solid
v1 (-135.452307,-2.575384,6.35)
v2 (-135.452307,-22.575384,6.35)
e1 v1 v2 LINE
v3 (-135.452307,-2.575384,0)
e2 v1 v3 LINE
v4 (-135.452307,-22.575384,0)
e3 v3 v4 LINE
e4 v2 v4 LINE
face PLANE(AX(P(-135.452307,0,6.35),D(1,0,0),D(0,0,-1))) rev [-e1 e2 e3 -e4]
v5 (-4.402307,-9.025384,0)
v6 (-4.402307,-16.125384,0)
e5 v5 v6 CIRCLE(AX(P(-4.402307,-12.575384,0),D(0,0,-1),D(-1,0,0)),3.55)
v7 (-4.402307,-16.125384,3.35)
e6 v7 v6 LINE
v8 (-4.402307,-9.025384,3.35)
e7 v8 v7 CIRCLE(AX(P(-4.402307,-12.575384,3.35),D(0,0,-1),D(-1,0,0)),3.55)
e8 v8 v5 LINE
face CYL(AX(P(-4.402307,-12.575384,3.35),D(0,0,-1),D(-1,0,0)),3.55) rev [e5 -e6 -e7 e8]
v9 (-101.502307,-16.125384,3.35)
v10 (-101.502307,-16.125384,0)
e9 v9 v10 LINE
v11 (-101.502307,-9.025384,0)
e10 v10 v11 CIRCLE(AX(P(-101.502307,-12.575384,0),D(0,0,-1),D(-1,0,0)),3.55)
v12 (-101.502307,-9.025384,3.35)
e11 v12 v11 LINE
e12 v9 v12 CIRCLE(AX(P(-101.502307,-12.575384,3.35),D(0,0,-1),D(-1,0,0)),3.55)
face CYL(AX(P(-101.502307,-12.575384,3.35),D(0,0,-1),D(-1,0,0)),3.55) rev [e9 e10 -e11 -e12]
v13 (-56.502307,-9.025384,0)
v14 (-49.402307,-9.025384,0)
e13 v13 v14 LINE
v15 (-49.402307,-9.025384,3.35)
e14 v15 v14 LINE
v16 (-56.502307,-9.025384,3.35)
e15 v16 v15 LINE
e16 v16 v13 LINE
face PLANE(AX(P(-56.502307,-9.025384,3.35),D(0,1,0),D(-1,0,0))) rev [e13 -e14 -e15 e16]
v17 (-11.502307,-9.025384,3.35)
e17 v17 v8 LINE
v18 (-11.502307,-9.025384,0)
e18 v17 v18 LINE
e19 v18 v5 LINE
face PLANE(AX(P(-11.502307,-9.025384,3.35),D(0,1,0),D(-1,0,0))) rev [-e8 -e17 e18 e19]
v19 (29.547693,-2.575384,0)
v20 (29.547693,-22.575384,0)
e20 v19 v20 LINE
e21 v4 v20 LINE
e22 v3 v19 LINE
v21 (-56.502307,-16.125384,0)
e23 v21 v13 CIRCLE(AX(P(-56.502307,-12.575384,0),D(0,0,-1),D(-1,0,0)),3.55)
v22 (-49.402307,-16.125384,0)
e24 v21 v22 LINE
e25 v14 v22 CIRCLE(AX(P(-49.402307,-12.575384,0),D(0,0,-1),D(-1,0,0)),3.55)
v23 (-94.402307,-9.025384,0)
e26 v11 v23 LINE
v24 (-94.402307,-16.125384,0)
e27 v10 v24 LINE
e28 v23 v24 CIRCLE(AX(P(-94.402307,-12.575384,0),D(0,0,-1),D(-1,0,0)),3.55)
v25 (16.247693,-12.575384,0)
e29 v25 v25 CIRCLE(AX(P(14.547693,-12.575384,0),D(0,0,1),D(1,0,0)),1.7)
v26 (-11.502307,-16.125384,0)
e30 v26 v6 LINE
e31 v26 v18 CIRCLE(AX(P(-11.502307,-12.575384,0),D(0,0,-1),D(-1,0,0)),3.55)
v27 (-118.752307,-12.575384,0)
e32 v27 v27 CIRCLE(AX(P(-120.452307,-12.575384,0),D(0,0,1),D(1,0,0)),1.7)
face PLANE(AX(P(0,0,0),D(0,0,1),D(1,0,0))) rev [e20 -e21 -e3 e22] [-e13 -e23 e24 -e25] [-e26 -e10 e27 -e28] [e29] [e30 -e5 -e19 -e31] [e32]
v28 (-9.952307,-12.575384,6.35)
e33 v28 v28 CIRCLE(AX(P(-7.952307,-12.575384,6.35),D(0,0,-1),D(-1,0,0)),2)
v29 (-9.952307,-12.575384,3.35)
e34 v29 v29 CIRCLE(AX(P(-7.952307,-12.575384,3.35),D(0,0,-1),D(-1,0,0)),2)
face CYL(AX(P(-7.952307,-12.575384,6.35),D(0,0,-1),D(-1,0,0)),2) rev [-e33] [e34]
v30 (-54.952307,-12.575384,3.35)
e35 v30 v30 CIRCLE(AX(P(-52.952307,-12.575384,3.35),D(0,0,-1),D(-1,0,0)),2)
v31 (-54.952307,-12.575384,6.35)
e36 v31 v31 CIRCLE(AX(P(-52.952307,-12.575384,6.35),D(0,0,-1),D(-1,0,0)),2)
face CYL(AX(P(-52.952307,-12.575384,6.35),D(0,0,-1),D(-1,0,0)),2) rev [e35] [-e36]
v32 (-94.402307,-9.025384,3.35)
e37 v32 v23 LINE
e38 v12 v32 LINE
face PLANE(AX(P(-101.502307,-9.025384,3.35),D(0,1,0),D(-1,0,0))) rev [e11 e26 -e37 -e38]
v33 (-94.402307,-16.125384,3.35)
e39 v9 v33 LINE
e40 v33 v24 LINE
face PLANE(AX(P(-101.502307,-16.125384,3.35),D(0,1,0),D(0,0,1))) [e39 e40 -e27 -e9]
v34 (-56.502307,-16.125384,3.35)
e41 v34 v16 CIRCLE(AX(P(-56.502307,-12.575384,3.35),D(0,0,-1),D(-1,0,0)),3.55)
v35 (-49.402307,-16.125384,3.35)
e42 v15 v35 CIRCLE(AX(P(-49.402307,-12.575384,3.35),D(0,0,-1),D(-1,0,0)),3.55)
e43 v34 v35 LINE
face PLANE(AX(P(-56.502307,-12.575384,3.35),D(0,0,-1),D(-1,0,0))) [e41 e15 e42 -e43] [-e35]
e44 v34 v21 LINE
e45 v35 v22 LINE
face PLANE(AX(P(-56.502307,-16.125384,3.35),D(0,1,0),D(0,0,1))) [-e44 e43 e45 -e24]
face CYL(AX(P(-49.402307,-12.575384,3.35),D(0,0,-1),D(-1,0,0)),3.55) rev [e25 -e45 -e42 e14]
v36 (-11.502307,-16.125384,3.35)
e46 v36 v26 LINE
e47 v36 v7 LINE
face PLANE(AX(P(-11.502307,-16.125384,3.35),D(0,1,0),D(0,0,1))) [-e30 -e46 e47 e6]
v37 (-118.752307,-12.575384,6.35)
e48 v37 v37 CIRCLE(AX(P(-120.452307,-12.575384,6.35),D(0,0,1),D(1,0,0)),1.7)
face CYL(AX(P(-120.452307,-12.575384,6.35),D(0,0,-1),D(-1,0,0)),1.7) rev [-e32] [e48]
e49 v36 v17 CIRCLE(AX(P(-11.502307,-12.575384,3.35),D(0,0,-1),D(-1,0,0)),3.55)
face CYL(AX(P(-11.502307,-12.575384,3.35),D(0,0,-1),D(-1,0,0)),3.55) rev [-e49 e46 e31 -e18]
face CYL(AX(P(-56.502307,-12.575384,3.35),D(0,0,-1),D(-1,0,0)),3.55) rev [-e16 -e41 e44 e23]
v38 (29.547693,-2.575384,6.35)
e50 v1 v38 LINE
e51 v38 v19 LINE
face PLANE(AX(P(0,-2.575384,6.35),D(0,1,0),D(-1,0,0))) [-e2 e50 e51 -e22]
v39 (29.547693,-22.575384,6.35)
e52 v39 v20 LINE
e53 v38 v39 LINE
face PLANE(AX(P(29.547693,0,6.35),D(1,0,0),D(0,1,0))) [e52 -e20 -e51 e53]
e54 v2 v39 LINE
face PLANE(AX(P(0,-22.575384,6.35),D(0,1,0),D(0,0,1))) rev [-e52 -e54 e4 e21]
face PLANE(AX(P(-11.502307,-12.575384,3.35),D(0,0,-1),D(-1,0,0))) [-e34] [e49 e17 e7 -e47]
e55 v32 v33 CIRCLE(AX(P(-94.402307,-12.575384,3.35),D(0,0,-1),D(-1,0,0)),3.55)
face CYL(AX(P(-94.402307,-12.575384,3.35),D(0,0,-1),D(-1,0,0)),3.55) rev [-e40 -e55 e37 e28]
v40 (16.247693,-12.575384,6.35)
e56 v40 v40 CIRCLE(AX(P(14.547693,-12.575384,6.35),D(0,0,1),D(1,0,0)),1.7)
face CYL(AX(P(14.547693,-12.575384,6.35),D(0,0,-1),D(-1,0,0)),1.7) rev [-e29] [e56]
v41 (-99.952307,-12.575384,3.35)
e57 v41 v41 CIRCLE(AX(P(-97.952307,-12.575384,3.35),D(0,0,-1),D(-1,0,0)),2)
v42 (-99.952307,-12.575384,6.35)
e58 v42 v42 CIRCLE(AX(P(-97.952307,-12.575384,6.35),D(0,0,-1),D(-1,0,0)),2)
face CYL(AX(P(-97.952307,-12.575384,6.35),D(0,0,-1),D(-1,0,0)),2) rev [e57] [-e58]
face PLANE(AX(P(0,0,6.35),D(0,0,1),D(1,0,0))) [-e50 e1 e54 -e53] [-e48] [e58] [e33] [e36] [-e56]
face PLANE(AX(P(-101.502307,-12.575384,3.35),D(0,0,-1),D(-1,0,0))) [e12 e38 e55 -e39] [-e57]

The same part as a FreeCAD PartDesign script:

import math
import FreeCAD as App
import Part
import Sketcher
from FreeCAD import Vector
Q = App.Units.Quantity


def add_polygon(sketch, points):
    """Adds a closed chain of lines whose ends are joined by coincident constraints."""
    first, n = sketch.GeometryCount, len(points)
    for a, b in zip(points, points[1:] + points[:1]):
        sketch.addGeometry(Part.LineSegment(App.Vector(*a, 0), App.Vector(*b, 0)), False)
    for i in range(n):
        sketch.addConstraint(Sketcher.Constraint("Coincident", first + i, 2, first + (i + 1) % n, 1))

doc = App.newDocument("Part")
body = doc.addObject("PartDesign::Body", "Body")

# Sketch on XY plane
sketch1 = body.newObject("Sketcher::SketchObject", "Sketch")
sketch1.AttachmentSupport = (doc.getObject("XY_Plane"), [""])
sketch1.MapMode = "FlatFace"
add_polygon(sketch1, [(29.5, -22.6), (29.5, -2.6), (-135.5, -2.6), (-135.5, -22.6)])  # lines 0-3
sketch1.addGeometry(Part.Circle(Vector(14.5, -12.6, 0), Vector(0, 0, 1), 1.7), False)  # 4
sketch1.addGeometry(Part.Circle(Vector(-120.5, -12.6, 0), Vector(0, 0, 1), 1.7), False)  # 5
sketch1.addConstraint([
    Sketcher.Constraint("Vertical", 0),
    Sketcher.Constraint("Horizontal", 1),
    Sketcher.Constraint("Vertical", 2),
    Sketcher.Constraint("Horizontal", 3),
    Sketcher.Constraint("Equal", 4, 5),
    Sketcher.Constraint("Horizontal", 4, 3, 5, 3),
    Sketcher.Constraint("Diameter", 4, Q("3.4 mm")),
    Sketcher.Constraint("DistanceX", 1, 2, 1, 1, Q("165 mm")),
    Sketcher.Constraint("DistanceY", 0, 1, 0, 2, Q("20 mm")),
    Sketcher.Constraint("DistanceX", 5, 3, 4, 3, Q("135 mm")),
    Sketcher.Constraint("DistanceX", 4, 3, 0, 2, Q("15 mm")),
    Sketcher.Constraint("DistanceY", 4, 3, 0, 2, Q("10 mm")),
    Sketcher.Constraint("DistanceX", -1, 1, 4, 3, Q("14.547693 mm")),
    Sketcher.Constraint("DistanceY", 4, 3, -1, 1, Q("12.575384 mm")),
])
pad1 = body.newObject("PartDesign::Pad", "Pad")
pad1.Profile = sketch1
pad1.Length = 6.35

# Sketch on XY plane
sketch2 = body.newObject("Sketcher::SketchObject", "Sketch001")
sketch2.AttachmentSupport = (doc.getObject("XY_Plane"), [""])
sketch2.MapMode = "FlatFace"
sketch2.addGeometry([
    Part.LineSegment(Vector(-49.4, -16.1, 0), Vector(-56.5, -16.1, 0)),  # 0
    Part.ArcOfCircle(Part.Circle(Vector(-56.5, -12.6, 0), Vector(0, 0, 1), 3.5), math.radians(90), math.radians(270)),  # 1
    Part.LineSegment(Vector(-56.5, -9, 0), Vector(-49.4, -9, 0)),  # 2
    Part.ArcOfCircle(Part.Circle(Vector(-49.4, -12.6, 0), Vector(0, 0, 1), 3.5), math.radians(-90), math.radians(90)),  # 3
    Part.LineSegment(Vector(-94.4, -16.1, 0), Vector(-101.5, -16.1, 0)),  # 4
    Part.ArcOfCircle(Part.Circle(Vector(-101.5, -12.6, 0), Vector(0, 0, 1), 3.5), math.radians(90), math.radians(270)),  # 5
    Part.LineSegment(Vector(-101.5, -9, 0), Vector(-94.4, -9, 0)),  # 6
    Part.ArcOfCircle(Part.Circle(Vector(-94.4, -12.6, 0), Vector(0, 0, 1), 3.5), math.radians(-90), math.radians(90)),  # 7
    Part.LineSegment(Vector(-4.4, -16.1, 0), Vector(-11.5, -16.1, 0)),  # 8
    Part.ArcOfCircle(Part.Circle(Vector(-11.5, -12.6, 0), Vector(0, 0, 1), 3.5), math.radians(90), math.radians(270)),  # 9
    Part.LineSegment(Vector(-11.5, -9, 0), Vector(-4.4, -9, 0)),  # 10
    Part.ArcOfCircle(Part.Circle(Vector(-4.4, -12.6, 0), Vector(0, 0, 1), 3.5), math.radians(-90), math.radians(90)),  # 11
], False)
sketch2.addConstraint([
    Sketcher.Constraint("Tangent", 0, 2, 1, 2),
    Sketcher.Constraint("Tangent", 1, 1, 2, 1),
    Sketcher.Constraint("Tangent", 2, 2, 3, 2),
    Sketcher.Constraint("Tangent", 3, 1, 0, 1),
    Sketcher.Constraint("Tangent", 4, 2, 5, 2),
    Sketcher.Constraint("Tangent", 5, 1, 6, 1),
    Sketcher.Constraint("Tangent", 6, 2, 7, 2),
    Sketcher.Constraint("Tangent", 7, 1, 4, 1),
    Sketcher.Constraint("Tangent", 8, 2, 9, 2),
    Sketcher.Constraint("Tangent", 9, 1, 10, 1),
    Sketcher.Constraint("Tangent", 10, 2, 11, 2),
    Sketcher.Constraint("Tangent", 11, 1, 8, 1),
    Sketcher.Constraint("Horizontal", 0),
    Sketcher.Constraint("Horizontal", 2),
    Sketcher.Constraint("Horizontal", 4),
    Sketcher.Constraint("Horizontal", 6),
    Sketcher.Constraint("Horizontal", 8),
    Sketcher.Constraint("Horizontal", 10),
    Sketcher.Constraint("Equal", 3, 5),
    Sketcher.Constraint("Equal", 7, 9),
    Sketcher.Constraint("Horizontal", 3, 3, 5, 3),
    Sketcher.Constraint("Horizontal", 7, 3, 9, 3),
    Sketcher.Constraint("Equal", 2, 4),
    Sketcher.Constraint("Equal", 6, 8),
    Sketcher.Constraint("Radius", 1, Q("3.55 mm")),
    Sketcher.Constraint("DistanceX", 0, 2, 0, 1, Q("7.1 mm")),
    Sketcher.Constraint("DistanceX", 5, 3, 1, 3, Q("45 mm")),
    Sketcher.Constraint("DistanceX", 1, 3, 9, 3, Q("45 mm")),
    Sketcher.Constraint("DistanceX", 1, 3, -1, 1, Q("56.502307 mm")),
    Sketcher.Constraint("DistanceY", 1, 3, -1, 1, Q("12.575384 mm")),
])
pocket1 = body.newObject("PartDesign::Pocket", "Pocket")
pocket1.Profile = sketch2
pocket1.Length = 3.35
pocket1.Reversed = True

# Sketch on XY plane
sketch3 = body.newObject("Sketcher::SketchObject", "Sketch002")
sketch3.AttachmentSupport = (doc.getObject("XY_Plane"), [""])
sketch3.MapMode = "FlatFace"
sketch3.AttachmentOffset = App.Placement(Vector(0, 0, 3.35), App.Rotation())
sketch3.addGeometry([
    Part.ArcOfCircle(Part.Circle(Vector(-8, -12.6, 0), Vector(0, 0, 1), 2), math.radians(90), math.radians(180)),  # 0
    Part.ArcOfCircle(Part.Circle(Vector(-8, -12.6, 0), Vector(0, 0, 1), 2), math.radians(-90), math.radians(90)),  # 1
    Part.ArcOfCircle(Part.Circle(Vector(-8, -12.6, 0), Vector(0, 0, 1), 2), math.radians(180), math.radians(270)),  # 2
    Part.ArcOfCircle(Part.Circle(Vector(-53, -12.6, 0), Vector(0, 0, 1), 2), math.radians(-90), math.radians(90)),  # 3
    Part.ArcOfCircle(Part.Circle(Vector(-53, -12.6, 0), Vector(0, 0, 1), 2), math.radians(180), math.radians(270)),  # 4
    Part.ArcOfCircle(Part.Circle(Vector(-53, -12.6, 0), Vector(0, 0, 1), 2), math.radians(90), math.radians(180)),  # 5
    Part.ArcOfCircle(Part.Circle(Vector(-98, -12.6, 0), Vector(0, 0, 1), 2), math.radians(90), math.radians(180)),  # 6
    Part.ArcOfCircle(Part.Circle(Vector(-98, -12.6, 0), Vector(0, 0, 1), 2), math.radians(-90), math.radians(90)),  # 7
    Part.ArcOfCircle(Part.Circle(Vector(-98, -12.6, 0), Vector(0, 0, 1), 2), math.radians(180), math.radians(270)),  # 8
], False)
sketch3.addConstraint([
    Sketcher.Constraint("Tangent", 0, 1, 1, 2),
    Sketcher.Constraint("Tangent", 1, 1, 2, 2),
    Sketcher.Constraint("Tangent", 2, 1, 0, 2),
    Sketcher.Constraint("Tangent", 3, 1, 4, 2),
    Sketcher.Constraint("Tangent", 4, 1, 5, 2),
    Sketcher.Constraint("Tangent", 5, 1, 3, 2),
    Sketcher.Constraint("Tangent", 6, 1, 7, 2),
    Sketcher.Constraint("Tangent", 7, 1, 8, 2),
    Sketcher.Constraint("Tangent", 8, 1, 6, 2),
    Sketcher.Constraint("Equal", 2, 3),
    Sketcher.Constraint("Equal", 5, 6),
    Sketcher.Constraint("Horizontal", 2, 3, 3, 3),
    Sketcher.Constraint("Horizontal", 5, 3, 6, 3),
    Sketcher.Constraint("Horizontal", 8, 3, 2, 1),
    Sketcher.Constraint("Horizontal", 2, 1, 4, 1),
    Sketcher.Constraint("Horizontal", 4, 1, 8, 1),
    Sketcher.Constraint("Vertical", 2, 3, 0, 1),
    Sketcher.Constraint("Vertical", 0, 1, 1, 1),
    Sketcher.Constraint("Vertical", 5, 3, 3, 1),
    Sketcher.Constraint("Vertical", 3, 1, 5, 1),
    Sketcher.Constraint("Vertical", 8, 3, 6, 1),
    Sketcher.Constraint("Vertical", 6, 1, 7, 1),
    Sketcher.Constraint("Radius", 0, Q("2 mm")),
    Sketcher.Constraint("DistanceX", 3, 3, 2, 3, Q("45 mm")),
    Sketcher.Constraint("DistanceX", 6, 3, 4, 3, Q("45 mm")),
    Sketcher.Constraint("DistanceX", 0, 3, -1, 1, Q("7.952307 mm")),
    Sketcher.Constraint("DistanceY", 0, 3, -1, 1, Q("12.575384 mm")),
])
pocket2 = body.newObject("PartDesign::Pocket", "Pocket001")
pocket2.Profile = sketch3
pocket2.Length = 3
pocket2.Reversed = True

doc.recompute()
